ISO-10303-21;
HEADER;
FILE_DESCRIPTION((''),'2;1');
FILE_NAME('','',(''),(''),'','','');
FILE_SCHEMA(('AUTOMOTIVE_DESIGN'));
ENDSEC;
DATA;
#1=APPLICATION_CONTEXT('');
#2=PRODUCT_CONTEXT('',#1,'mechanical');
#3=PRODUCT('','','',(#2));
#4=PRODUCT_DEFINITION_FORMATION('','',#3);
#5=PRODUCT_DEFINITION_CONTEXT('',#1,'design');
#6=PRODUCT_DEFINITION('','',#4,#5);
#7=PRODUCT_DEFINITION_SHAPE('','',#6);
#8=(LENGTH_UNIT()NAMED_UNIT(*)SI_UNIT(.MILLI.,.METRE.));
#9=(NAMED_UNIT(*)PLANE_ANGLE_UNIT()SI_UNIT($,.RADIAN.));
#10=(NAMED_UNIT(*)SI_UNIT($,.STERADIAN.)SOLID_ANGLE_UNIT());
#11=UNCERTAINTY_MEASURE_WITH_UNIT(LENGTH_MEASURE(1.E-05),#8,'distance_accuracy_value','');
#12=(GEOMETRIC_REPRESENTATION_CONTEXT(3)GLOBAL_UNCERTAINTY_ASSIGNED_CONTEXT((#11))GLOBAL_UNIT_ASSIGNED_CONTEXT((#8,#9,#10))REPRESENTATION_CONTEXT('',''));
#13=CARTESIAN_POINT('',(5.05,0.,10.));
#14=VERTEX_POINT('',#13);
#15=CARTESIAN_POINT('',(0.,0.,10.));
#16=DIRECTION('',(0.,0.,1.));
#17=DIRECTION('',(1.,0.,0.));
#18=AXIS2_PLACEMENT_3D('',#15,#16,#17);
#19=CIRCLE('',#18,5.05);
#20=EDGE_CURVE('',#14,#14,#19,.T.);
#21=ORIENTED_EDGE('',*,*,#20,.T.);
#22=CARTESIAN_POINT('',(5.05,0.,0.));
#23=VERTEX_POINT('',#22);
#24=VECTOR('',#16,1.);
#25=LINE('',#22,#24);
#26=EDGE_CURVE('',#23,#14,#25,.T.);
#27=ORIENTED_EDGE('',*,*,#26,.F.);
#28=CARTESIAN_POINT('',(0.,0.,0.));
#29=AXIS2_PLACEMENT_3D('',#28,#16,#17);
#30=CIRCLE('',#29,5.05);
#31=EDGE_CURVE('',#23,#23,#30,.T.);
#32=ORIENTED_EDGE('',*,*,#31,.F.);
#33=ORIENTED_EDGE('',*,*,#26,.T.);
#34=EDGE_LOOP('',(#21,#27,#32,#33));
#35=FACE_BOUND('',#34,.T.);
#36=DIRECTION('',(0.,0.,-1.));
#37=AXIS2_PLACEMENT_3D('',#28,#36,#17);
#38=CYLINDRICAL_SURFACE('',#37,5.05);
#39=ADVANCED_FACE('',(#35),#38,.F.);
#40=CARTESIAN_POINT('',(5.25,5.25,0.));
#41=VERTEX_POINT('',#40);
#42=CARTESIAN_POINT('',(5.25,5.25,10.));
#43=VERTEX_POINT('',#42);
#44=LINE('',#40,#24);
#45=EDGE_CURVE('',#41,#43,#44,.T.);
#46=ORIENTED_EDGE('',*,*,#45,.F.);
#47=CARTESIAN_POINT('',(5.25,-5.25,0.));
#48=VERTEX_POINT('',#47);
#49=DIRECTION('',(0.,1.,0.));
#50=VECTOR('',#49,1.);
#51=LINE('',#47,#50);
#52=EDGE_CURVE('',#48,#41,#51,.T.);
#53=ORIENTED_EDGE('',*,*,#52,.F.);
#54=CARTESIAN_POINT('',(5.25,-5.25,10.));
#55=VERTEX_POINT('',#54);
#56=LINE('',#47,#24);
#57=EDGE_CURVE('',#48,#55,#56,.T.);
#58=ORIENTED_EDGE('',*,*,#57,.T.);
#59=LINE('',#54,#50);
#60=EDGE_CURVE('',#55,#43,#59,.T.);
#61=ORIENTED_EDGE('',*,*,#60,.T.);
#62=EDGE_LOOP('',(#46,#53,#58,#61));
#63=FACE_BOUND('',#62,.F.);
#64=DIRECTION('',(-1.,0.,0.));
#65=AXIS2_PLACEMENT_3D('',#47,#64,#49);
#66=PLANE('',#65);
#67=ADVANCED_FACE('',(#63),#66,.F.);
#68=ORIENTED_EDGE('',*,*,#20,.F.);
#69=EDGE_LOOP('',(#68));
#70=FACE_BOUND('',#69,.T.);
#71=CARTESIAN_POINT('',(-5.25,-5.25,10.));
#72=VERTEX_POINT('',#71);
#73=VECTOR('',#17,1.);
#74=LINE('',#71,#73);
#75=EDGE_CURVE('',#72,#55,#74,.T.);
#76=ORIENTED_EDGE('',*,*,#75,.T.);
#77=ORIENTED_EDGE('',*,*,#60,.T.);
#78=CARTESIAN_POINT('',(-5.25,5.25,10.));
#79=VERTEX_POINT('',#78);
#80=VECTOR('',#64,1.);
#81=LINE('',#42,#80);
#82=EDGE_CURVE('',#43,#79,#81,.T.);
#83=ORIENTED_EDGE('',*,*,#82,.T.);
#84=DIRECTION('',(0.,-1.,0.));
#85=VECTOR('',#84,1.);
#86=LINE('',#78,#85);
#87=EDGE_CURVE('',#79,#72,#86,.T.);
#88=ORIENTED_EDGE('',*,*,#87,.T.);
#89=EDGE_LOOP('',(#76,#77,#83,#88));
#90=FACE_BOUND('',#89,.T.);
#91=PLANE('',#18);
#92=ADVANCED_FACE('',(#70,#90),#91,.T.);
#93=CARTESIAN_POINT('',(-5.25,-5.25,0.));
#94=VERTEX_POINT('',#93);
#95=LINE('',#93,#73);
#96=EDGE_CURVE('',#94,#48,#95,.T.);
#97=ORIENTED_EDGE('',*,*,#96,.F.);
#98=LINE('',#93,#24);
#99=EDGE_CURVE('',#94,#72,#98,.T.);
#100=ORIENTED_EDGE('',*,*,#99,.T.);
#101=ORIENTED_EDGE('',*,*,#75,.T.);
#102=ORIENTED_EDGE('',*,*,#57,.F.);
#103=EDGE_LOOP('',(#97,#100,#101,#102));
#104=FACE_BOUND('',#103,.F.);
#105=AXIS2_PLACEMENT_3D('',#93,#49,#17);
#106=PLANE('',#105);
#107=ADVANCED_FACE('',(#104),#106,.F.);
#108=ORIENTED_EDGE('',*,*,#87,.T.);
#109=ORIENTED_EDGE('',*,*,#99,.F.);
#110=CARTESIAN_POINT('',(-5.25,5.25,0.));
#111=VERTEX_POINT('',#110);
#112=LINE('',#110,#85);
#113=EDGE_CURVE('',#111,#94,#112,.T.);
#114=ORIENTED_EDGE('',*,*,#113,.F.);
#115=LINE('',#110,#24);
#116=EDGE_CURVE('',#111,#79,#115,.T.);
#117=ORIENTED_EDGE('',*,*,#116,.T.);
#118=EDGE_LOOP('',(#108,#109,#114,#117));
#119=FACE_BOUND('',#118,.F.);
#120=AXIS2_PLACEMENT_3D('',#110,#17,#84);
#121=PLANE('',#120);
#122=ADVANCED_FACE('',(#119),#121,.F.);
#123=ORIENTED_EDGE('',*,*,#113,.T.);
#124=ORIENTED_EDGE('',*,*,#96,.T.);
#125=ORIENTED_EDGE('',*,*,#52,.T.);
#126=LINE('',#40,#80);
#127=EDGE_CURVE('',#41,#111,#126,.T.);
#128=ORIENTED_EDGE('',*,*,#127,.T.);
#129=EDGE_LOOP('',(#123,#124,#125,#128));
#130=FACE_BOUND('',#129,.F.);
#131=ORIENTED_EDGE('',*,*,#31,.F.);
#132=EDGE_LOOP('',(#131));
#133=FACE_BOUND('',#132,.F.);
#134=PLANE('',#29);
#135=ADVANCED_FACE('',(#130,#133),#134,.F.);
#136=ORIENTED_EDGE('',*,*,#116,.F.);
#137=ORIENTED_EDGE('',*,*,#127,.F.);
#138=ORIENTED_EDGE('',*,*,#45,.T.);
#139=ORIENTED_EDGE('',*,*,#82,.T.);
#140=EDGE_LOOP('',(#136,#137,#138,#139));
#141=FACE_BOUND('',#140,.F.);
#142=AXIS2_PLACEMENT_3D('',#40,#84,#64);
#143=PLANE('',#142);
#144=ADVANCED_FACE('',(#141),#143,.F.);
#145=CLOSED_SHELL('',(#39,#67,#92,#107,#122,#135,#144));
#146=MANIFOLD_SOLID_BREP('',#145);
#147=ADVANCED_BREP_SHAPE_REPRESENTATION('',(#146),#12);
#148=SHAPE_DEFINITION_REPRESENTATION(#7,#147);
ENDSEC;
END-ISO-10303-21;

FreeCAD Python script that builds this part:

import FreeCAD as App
import Part
import Sketcher

V = App.Vector

doc = App.newDocument("Part")
body = doc.addObject("PartDesign::Body", "Body")

# Sketch on XY plane
sketch1 = body.newObject("Sketcher::SketchObject", "Sketch")
sketch1.AttachmentSupport = (doc.getObject("XY_Plane"), [""])
sketch1.MapMode = "FlatFace"
sketch1.addGeometry(Part.LineSegment(V(-5.25, 5.25, 0), V(-5.25, -5.25, 0)), False)
sketch1.addGeometry(Part.LineSegment(V(-5.25, -5.25, 0), V(5.25, -5.25, 0)), False)
sketch1.addGeometry(Part.LineSegment(V(5.25, -5.25, 0), V(5.25, 5.25, 0)), False)
sketch1.addGeometry(Part.LineSegment(V(5.25, 5.25, 0), V(-5.25, 5.25, 0)), False)
sketch1.addGeometry(Part.Circle(V(0, 0, 0), V(0, 0, 1), 5.05), False)
sketch1.addConstraint(Sketcher.Constraint("Coincident", 0, 2, 1, 1))
sketch1.addConstraint(Sketcher.Constraint("Coincident", 1, 2, 2, 1))
sketch1.addConstraint(Sketcher.Constraint("Coincident", 2, 2, 3, 1))
sketch1.addConstraint(Sketcher.Constraint("Coincident", 3, 2, 0, 1))
sketch1.addConstraint(Sketcher.Constraint("Vertical", 0))
sketch1.addConstraint(Sketcher.Constraint("Horizontal", 1))
sketch1.addConstraint(Sketcher.Constraint("Vertical", 2))
sketch1.addConstraint(Sketcher.Constraint("Horizontal", 3))
sketch1.addConstraint(Sketcher.Constraint("Coincident", 4, 3, -1, 1))
sketch1.addConstraint(Sketcher.Constraint("Symmetric", 0, 2, 2, 2, -1, 1))
sketch1.addConstraint(Sketcher.Constraint("Equal", 3, 0))
sketch1.addConstraint(Sketcher.Constraint("Diameter", 4, 10.1))
sketch1.addConstraint(Sketcher.Constraint("DistanceX", 1, 1, 1, 2, 10.5))
pad1 = body.newObject("PartDesign::Pad", "Pad")
pad1.Profile = sketch1
pad1.Length = 10

doc.recompute()
